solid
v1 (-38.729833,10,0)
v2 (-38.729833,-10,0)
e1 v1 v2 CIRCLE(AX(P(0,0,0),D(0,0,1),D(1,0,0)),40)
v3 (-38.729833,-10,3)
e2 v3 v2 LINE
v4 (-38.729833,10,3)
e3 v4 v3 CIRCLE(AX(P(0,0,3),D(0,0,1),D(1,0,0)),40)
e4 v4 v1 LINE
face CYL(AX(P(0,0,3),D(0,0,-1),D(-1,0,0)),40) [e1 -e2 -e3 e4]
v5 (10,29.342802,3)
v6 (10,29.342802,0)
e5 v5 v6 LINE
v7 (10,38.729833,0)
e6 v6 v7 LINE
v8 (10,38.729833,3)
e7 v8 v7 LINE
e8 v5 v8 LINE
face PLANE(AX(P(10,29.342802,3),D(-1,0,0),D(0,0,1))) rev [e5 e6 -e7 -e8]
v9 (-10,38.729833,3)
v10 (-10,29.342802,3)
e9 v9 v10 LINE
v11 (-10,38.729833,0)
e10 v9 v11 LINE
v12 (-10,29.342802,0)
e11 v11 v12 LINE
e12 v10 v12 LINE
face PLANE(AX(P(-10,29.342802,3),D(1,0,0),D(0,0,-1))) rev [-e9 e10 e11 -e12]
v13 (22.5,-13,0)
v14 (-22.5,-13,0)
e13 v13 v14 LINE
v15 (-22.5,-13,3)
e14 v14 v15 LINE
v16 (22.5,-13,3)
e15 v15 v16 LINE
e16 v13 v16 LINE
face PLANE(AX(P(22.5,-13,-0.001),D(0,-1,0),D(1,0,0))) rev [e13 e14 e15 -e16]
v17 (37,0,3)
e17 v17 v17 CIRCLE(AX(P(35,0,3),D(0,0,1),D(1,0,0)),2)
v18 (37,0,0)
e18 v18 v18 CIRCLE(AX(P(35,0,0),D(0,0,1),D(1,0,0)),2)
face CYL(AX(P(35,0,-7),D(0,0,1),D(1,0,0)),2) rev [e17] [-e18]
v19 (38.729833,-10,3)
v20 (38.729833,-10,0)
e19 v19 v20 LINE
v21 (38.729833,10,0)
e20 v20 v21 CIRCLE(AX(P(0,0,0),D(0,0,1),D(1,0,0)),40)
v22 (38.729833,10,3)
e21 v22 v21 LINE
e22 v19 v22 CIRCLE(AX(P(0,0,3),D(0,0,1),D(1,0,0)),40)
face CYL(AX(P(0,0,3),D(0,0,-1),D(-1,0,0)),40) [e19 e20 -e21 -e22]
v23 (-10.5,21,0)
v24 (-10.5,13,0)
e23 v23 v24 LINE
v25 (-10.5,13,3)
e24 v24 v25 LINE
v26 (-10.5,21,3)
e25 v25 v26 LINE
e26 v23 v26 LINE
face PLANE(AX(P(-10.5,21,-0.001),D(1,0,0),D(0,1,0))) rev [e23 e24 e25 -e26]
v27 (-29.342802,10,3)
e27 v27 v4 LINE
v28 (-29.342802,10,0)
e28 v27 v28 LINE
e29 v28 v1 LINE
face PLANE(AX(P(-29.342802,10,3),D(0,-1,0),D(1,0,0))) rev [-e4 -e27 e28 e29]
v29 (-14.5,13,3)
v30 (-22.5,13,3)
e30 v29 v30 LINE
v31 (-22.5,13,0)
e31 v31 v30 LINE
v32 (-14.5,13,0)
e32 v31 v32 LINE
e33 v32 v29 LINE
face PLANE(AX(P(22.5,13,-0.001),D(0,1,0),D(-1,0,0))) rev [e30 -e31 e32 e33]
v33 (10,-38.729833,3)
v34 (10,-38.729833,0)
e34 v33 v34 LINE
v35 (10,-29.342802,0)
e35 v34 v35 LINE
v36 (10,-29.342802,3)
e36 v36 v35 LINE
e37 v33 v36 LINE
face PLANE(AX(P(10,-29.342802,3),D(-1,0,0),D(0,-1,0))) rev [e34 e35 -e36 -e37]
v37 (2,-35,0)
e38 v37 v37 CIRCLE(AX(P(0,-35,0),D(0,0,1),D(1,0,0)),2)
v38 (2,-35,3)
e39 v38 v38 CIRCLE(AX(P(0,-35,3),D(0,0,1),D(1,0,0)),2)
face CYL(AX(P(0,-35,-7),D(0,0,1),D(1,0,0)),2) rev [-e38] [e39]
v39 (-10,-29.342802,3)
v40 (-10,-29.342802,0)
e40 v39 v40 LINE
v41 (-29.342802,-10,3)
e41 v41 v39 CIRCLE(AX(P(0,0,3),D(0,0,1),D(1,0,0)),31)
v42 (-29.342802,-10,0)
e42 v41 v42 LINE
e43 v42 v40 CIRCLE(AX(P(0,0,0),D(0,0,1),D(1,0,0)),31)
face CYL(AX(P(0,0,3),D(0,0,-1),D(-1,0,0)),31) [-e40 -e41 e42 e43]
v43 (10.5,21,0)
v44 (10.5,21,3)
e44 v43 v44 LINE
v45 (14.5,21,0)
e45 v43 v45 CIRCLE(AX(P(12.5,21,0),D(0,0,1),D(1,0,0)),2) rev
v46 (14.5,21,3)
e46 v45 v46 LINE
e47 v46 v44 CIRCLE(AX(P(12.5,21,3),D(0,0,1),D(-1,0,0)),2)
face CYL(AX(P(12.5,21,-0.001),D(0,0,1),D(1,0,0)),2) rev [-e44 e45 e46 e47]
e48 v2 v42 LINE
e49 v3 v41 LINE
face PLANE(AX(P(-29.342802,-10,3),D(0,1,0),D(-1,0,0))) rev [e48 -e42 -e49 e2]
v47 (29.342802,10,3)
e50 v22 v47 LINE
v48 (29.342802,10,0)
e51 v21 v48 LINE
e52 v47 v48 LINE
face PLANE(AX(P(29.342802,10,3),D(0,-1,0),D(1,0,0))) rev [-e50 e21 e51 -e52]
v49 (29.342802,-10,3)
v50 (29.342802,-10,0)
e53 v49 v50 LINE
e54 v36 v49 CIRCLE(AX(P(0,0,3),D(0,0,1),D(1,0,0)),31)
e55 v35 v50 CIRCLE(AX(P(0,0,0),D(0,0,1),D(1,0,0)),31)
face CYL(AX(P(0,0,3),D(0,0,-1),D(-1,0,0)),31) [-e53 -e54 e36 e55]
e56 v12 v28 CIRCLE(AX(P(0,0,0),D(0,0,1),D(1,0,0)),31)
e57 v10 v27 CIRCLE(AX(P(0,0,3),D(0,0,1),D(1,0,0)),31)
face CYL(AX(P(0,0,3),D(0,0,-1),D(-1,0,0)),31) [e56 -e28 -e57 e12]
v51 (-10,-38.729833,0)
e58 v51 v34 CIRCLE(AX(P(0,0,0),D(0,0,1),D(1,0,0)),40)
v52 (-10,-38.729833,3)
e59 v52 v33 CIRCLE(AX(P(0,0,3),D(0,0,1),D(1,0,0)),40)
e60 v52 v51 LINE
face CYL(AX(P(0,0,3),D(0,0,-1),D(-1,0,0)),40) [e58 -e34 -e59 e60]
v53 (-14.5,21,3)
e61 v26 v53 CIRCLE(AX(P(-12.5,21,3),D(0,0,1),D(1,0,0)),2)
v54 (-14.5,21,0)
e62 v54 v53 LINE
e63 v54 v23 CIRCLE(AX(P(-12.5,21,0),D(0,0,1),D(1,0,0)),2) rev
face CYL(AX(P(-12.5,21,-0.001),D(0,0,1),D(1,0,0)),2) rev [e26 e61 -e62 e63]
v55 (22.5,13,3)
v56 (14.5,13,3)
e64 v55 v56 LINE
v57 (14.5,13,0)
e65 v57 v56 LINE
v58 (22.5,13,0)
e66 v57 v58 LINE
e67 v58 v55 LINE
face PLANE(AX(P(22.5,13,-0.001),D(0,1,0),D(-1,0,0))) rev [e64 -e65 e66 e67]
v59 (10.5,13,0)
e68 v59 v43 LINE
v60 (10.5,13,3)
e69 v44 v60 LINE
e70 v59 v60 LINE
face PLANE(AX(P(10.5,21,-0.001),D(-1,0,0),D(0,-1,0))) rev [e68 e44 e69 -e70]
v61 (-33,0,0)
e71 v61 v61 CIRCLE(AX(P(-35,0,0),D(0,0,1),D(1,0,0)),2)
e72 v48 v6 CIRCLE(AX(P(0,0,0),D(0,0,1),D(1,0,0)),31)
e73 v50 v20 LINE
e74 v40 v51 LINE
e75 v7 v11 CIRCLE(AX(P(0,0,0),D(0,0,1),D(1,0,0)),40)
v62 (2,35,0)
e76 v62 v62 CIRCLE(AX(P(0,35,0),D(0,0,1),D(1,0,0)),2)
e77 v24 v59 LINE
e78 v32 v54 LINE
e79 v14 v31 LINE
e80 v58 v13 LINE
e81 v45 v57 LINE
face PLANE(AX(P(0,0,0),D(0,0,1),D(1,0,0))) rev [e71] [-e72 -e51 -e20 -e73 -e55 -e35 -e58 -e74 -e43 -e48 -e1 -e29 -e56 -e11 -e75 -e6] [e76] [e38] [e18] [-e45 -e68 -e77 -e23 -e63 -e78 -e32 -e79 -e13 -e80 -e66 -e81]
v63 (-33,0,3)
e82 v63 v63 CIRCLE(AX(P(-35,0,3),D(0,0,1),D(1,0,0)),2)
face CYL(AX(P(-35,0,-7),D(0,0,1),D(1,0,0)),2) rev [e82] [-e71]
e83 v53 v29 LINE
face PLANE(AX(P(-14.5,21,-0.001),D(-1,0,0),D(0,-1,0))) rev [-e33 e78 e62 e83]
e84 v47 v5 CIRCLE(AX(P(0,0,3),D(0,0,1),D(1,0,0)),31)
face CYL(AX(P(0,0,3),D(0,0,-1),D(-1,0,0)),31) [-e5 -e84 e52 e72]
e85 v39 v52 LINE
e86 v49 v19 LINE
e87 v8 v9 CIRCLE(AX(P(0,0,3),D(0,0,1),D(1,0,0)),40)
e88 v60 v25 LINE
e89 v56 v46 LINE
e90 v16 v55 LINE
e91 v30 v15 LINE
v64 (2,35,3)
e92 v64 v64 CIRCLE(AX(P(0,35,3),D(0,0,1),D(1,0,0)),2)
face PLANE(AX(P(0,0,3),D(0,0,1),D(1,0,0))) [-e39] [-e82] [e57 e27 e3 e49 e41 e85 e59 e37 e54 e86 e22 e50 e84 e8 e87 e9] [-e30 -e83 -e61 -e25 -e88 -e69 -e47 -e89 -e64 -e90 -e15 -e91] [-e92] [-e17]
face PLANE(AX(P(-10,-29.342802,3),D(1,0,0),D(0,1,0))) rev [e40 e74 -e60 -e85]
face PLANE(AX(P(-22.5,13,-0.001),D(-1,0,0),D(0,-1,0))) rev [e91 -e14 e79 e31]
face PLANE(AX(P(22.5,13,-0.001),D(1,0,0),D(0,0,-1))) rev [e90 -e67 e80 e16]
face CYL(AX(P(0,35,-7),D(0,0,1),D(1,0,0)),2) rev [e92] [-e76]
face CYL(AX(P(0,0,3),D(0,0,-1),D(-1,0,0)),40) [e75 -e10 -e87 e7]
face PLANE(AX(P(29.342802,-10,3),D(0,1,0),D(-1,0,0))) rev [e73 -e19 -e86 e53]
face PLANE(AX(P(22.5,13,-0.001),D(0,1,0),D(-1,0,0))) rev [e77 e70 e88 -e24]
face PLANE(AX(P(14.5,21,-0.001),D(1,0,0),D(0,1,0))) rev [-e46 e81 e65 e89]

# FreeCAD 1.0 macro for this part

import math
import FreeCAD as App
import Part
import Sketcher

V = App.Vector
Q = App.Units.Quantity

doc = App.newDocument("Part")
params = doc.addObject("Spreadsheet::Sheet", "Params")
for row, (alias, value) in enumerate([
    ("sketch1_radius", "40 mm"),
    ("sketch1_radius2", "31 mm"),
    ("pad1_length", "3 mm"),
    ("sketch2_width", "45 mm"),
    ("sketch2_height", "26 mm"),
    ("sketch3_radius", "2 mm"),
    ("sketch3_height", "8 mm"),
    ("sketch4_radius", "2 mm"),
    ("sketch4_height", "8 mm"),
    ("sketch5_diameter", "4 mm"),
    ("pocket4_length", "10 mm"),
], start=1):
    params.set(f"A{row}", alias)
    params.set(f"B{row}", "=" + value)
    params.setAlias(f"B{row}", alias)

body = doc.addObject("PartDesign::Body", "Body")

# Sketch on XY plane
sketch1 = body.newObject("Sketcher::SketchObject", "Sketch")
sketch1.AttachmentSupport = (doc.getObject("XY_Plane"), [""])
sketch1.MapMode = "FlatFace"
sketch1.addGeometry([
    Part.LineSegment(V(10, 29, 0), V(10, 39, 0)),  # 0
    Part.ArcOfCircle(Part.Circle(V(0, 0, 0), V(0, 0, 1), 40), math.radians(76), math.radians(104)),  # 1
    Part.LineSegment(V(-10, 39, 0), V(-10, 29, 0)),  # 2
    Part.ArcOfCircle(Part.Circle(V(0, 0, 0), V(0, 0, 1), 31), math.radians(109), math.radians(161)),  # 3
    Part.LineSegment(V(-29, 10, 0), V(-39, 10, 0)),  # 4
    Part.ArcOfCircle(Part.Circle(V(0, 0, 0), V(0, 0, 1), 40), math.radians(166), math.radians(194)),  # 5
    Part.LineSegment(V(-39, -10, 0), V(-29, -10, 0)),  # 6
    Part.ArcOfCircle(Part.Circle(V(0, 0, 0), V(0, 0, 1), 31), math.radians(-161), math.radians(-109)),  # 7
    Part.LineSegment(V(-10, -29, 0), V(-10, -39, 0)),  # 8
    Part.ArcOfCircle(Part.Circle(V(0, 0, 0), V(0, 0, 1), 40), math.radians(-104), math.radians(-76)),  # 9
    Part.LineSegment(V(10, -39, 0), V(10, -29, 0)),  # 10
    Part.ArcOfCircle(Part.Circle(V(0, 0, 0), V(0, 0, 1), 31), math.radians(-71), math.radians(-19)),  # 11
    Part.LineSegment(V(29, -10, 0), V(39, -10, 0)),  # 12
    Part.ArcOfCircle(Part.Circle(V(0, 0, 0), V(0, 0, 1), 40), math.radians(-14), math.radians(14)),  # 13
    Part.LineSegment(V(39, 10, 0), V(29, 10, 0)),  # 14
    Part.ArcOfCircle(Part.Circle(V(0, 0, 0), V(0, 0, 1), 31), math.radians(19), math.radians(71)),  # 15
], False)
sketch1.addConstraint([
    Sketcher.Constraint("Coincident", 0, 2, 1, 1),
    Sketcher.Constraint("Coincident", 1, 2, 2, 1),
    Sketcher.Constraint("Coincident", 2, 2, 3, 1),
    Sketcher.Constraint("Coincident", 3, 2, 4, 1),
    Sketcher.Constraint("Coincident", 4, 2, 5, 1),
    Sketcher.Constraint("Coincident", 5, 2, 6, 1),
    Sketcher.Constraint("Coincident", 6, 2, 7, 1),
    Sketcher.Constraint("Coincident", 7, 2, 8, 1),
    Sketcher.Constraint("Coincident", 8, 2, 9, 1),
    Sketcher.Constraint("Coincident", 9, 2, 10, 1),
    Sketcher.Constraint("Coincident", 10, 2, 11, 1),
    Sketcher.Constraint("Coincident", 11, 2, 12, 1),
    Sketcher.Constraint("Coincident", 12, 2, 13, 1),
    Sketcher.Constraint("Coincident", 13, 2, 14, 1),
    Sketcher.Constraint("Coincident", 14, 2, 15, 1),
    Sketcher.Constraint("Coincident", 15, 2, 0, 1),
    Sketcher.Constraint("Vertical", 0),
    Sketcher.Constraint("Vertical", 2),
    Sketcher.Constraint("Horizontal", 4),
    Sketcher.Constraint("Horizontal", 6),
    Sketcher.Constraint("Vertical", 8),
    Sketcher.Constraint("Vertical", 10),
    Sketcher.Constraint("Horizontal", 12),
    Sketcher.Constraint("Horizontal", 14),
    Sketcher.Constraint("Coincident", 1, 3, -1, 1),
    Sketcher.Constraint("Coincident", 3, 3, -1, 1),
    Sketcher.Constraint("Coincident", 5, 3, -1, 1),
    Sketcher.Constraint("Coincident", 7, 3, -1, 1),
    Sketcher.Constraint("Coincident", 9, 3, -1, 1),
    Sketcher.Constraint("Coincident", 11, 3, -1, 1),
    Sketcher.Constraint("Coincident", 13, 3, -1, 1),
    Sketcher.Constraint("Coincident", 15, 3, -1, 1),
    Sketcher.Constraint("Equal", 1, 5),
    Sketcher.Constraint("Equal", 3, 7),
    Sketcher.Constraint("Equal", 5, 9),
    Sketcher.Constraint("Equal", 7, 11),
    Sketcher.Constraint("Equal", 9, 13),
    Sketcher.Constraint("Equal", 11, 15),
    Sketcher.Constraint("Horizontal", 0, 2, 1, 2),
    Sketcher.Constraint("Horizontal", 8, 2, 9, 2),
    Sketcher.Constraint("Horizontal", 6, 2, 11, 2),
    Sketcher.Constraint("Horizontal", 4, 2, 13, 2),
    Sketcher.Constraint("Vertical", 4, 2, 5, 2),
    Sketcher.Constraint("Vertical", 2, 2, 7, 2),
    Sketcher.Constraint("Equal", 14, 0),
    Sketcher.Constraint("Radius", 1, Q("40 mm")),
    Sketcher.Constraint("Radius", 3, Q("31 mm")),
    Sketcher.Constraint("DistanceX", -1, 1, 0, 2, Q("10 mm")),
])
sketch1.setExpression("Constraints[45]", "Params.sketch1_radius")
sketch1.setExpression("Constraints[46]", "Params.sketch1_radius2")
pad1 = body.newObject("PartDesign::Pad", "Pad")
pad1.Profile = sketch1
pad1.setExpression("Length", "Params.pad1_length")

# Sketch on XY plane
sketch2 = body.newObject("Sketcher::SketchObject", "Sketch001")
sketch2.AttachmentSupport = (doc.getObject("XY_Plane"), [""])
sketch2.MapMode = "FlatFace"
sketch2.AttachmentOffset = App.Placement(V(0, 0, 3), App.Rotation())
sketch2.addGeometry([
    Part.LineSegment(V(-22, 13, 0), V(-22, -13, 0)),
    Part.LineSegment(V(-22, -13, 0), V(22, -13, 0)),
    Part.LineSegment(V(22, -13, 0), V(22, 13, 0)),
    Part.LineSegment(V(22, 13, 0), V(-22, 13, 0)),
], False)
sketch2.addConstraint([
    Sketcher.Constraint("Coincident", 0, 2, 1, 1),
    Sketcher.Constraint("Coincident", 1, 2, 2, 1),
    Sketcher.Constraint("Coincident", 2, 2, 3, 1),
    Sketcher.Constraint("Coincident", 3, 2, 0, 1),
    Sketcher.Constraint("Vertical", 0),
    Sketcher.Constraint("Horizontal", 1),
    Sketcher.Constraint("Vertical", 2),
    Sketcher.Constraint("Horizontal", 3),
    Sketcher.Constraint("Symmetric", 0, 2, 2, 2, -1, 1),
    Sketcher.Constraint("DistanceX", 1, 1, 1, 2, Q("45 mm")),
    Sketcher.Constraint("DistanceY", 0, 2, 0, 1, Q("26 mm")),
])
sketch2.setExpression("Constraints[9]", "Params.sketch2_width")
sketch2.setExpression("Constraints[10]", "Params.sketch2_height")
pocket1 = body.newObject("PartDesign::Pocket", "Pocket")
pocket1.Profile = sketch2
pocket1.Type = "UpToFirst"

# Sketch on XY plane
sketch3 = body.newObject("Sketcher::SketchObject", "Sketch002")
sketch3.AttachmentSupport = (doc.getObject("XY_Plane"), [""])
sketch3.MapMode = "FlatFace"
sketch3.AttachmentOffset = App.Placement(V(0, 0, 3), App.Rotation())
sketch3.addGeometry([
    Part.LineSegment(V(-10.5, 13, 0), V(-10.5, 21, 0)),
    Part.ArcOfCircle(Part.Circle(V(-12.5, 21, 0), V(0, 0, 1), 2), math.radians(0), math.radians(180)),
    Part.LineSegment(V(-14.5, 21, 0), V(-14.5, 13, 0)),
    Part.LineSegment(V(-14.5, 13, 0), V(-10.5, 13, 0)),
], False)
sketch3.addConstraint([
    Sketcher.Constraint("Tangent", 0, 2, 1, 1),
    Sketcher.Constraint("Tangent", 1, 2, 2, 1),
    Sketcher.Constraint("Coincident", 2, 2, 3, 1),
    Sketcher.Constraint("Coincident", 3, 2, 0, 1),
    Sketcher.Constraint("Vertical", 0),
    Sketcher.Constraint("Vertical", 2),
    Sketcher.Constraint("Horizontal", 3),
    Sketcher.Constraint("Radius", 1, Q("2 mm")),
    Sketcher.Constraint("DistanceY", 0, 1, 0, 2, Q("8 mm")),
    Sketcher.Constraint("DistanceY", -1, 1, 1, 3, Q("21 mm")),
    Sketcher.Constraint("DistanceX", 1, 3, -1, 1, Q("12.5 mm")),
])
sketch3.setExpression("Constraints[7]", "Params.sketch3_radius")
sketch3.setExpression("Constraints[8]", "Params.sketch3_height")
pocket2 = body.newObject("PartDesign::Pocket", "Pocket001")
pocket2.Profile = sketch3
pocket2.Type = "UpToFirst"

# Sketch on XY plane
sketch4 = body.newObject("Sketcher::SketchObject", "Sketch003")
sketch4.AttachmentSupport = (doc.getObject("XY_Plane"), [""])
sketch4.MapMode = "FlatFace"
sketch4.AttachmentOffset = App.Placement(V(0, 0, 3), App.Rotation())
sketch4.addGeometry([
    Part.LineSegment(V(10.5, 21, 0), V(10.5, 13, 0)),
    Part.LineSegment(V(10.5, 13, 0), V(14.5, 13, 0)),
    Part.LineSegment(V(14.5, 13, 0), V(14.5, 21, 0)),
    Part.ArcOfCircle(Part.Circle(V(12.5, 21, 0), V(0, 0, 1), 2), math.radians(0), math.radians(180)),
], False)
sketch4.addConstraint([
    Sketcher.Constraint("Coincident", 0, 2, 1, 1),
    Sketcher.Constraint("Coincident", 1, 2, 2, 1),
    Sketcher.Constraint("Tangent", 2, 2, 3, 1),
    Sketcher.Constraint("Tangent", 3, 2, 0, 1),
    Sketcher.Constraint("Vertical", 0),
    Sketcher.Constraint("Horizontal", 1),
    Sketcher.Constraint("Vertical", 2),
    Sketcher.Constraint("Radius", 3, Q("2 mm")),
    Sketcher.Constraint("DistanceY", 0, 2, 0, 1, Q("8 mm")),
    Sketcher.Constraint("DistanceY", -1, 1, 3, 3, Q("21 mm")),
    Sketcher.Constraint("DistanceX", -1, 1, 3, 3, Q("12.5 mm")),
])
sketch4.setExpression("Constraints[7]", "Params.sketch4_radius")
sketch4.setExpression("Constraints[8]", "Params.sketch4_height")
pocket3 = body.newObject("PartDesign::Pocket", "Pocket002")
pocket3.Profile = sketch4
pocket3.Type = "UpToFirst"

# Sketch on XY plane
sketch5 = body.newObject("Sketcher::SketchObject", "Sketch004")
sketch5.AttachmentSupport = (doc.getObject("XY_Plane"), [""])
sketch5.MapMode = "FlatFace"
sketch5.AttachmentOffset = App.Placement(V(0, 0, 3), App.Rotation())
sketch5.addGeometry([
    Part.Circle(V(0, 35, 0), V(0, 0, 1), 2),
    Part.Circle(V(35, 0, 0), V(0, 0, 1), 2),
    Part.Circle(V(0, -35, 0), V(0, 0, 1), 2),
    Part.Circle(V(-35, 0, 0), V(0, 0, 1), 2),
], False)
sketch5.addConstraint([
    Sketcher.Constraint("Equal", 0, 1),
    Sketcher.Constraint("Equal", 1, 2),
    Sketcher.Constraint("Equal", 2, 3),
    Sketcher.Constraint("Symmetric", 0, 3, 2, 3, -1, 1),
    Sketcher.Constraint("Symmetric", 1, 3, 3, 3, -1, 1),
    Sketcher.Constraint("PointOnObject", 0, 3, -2),
    Sketcher.Constraint("PointOnObject", 1, 3, -1),
    Sketcher.Constraint("Diameter", 0, Q("4 mm")),
    Sketcher.Constraint("DistanceY", -1, 1, 0, 3, Q("35 mm")),
    Sketcher.Constraint("DistanceX", -1, 1, 1, 3, Q("35 mm")),
])
sketch5.setExpression("Constraints[7]", "Params.sketch5_diameter")
pocket4 = body.newObject("PartDesign::Pocket", "Pocket003")
pocket4.Profile = sketch5
pocket4.setExpression("Length", "Params.pocket4_length")

doc.recompute()
